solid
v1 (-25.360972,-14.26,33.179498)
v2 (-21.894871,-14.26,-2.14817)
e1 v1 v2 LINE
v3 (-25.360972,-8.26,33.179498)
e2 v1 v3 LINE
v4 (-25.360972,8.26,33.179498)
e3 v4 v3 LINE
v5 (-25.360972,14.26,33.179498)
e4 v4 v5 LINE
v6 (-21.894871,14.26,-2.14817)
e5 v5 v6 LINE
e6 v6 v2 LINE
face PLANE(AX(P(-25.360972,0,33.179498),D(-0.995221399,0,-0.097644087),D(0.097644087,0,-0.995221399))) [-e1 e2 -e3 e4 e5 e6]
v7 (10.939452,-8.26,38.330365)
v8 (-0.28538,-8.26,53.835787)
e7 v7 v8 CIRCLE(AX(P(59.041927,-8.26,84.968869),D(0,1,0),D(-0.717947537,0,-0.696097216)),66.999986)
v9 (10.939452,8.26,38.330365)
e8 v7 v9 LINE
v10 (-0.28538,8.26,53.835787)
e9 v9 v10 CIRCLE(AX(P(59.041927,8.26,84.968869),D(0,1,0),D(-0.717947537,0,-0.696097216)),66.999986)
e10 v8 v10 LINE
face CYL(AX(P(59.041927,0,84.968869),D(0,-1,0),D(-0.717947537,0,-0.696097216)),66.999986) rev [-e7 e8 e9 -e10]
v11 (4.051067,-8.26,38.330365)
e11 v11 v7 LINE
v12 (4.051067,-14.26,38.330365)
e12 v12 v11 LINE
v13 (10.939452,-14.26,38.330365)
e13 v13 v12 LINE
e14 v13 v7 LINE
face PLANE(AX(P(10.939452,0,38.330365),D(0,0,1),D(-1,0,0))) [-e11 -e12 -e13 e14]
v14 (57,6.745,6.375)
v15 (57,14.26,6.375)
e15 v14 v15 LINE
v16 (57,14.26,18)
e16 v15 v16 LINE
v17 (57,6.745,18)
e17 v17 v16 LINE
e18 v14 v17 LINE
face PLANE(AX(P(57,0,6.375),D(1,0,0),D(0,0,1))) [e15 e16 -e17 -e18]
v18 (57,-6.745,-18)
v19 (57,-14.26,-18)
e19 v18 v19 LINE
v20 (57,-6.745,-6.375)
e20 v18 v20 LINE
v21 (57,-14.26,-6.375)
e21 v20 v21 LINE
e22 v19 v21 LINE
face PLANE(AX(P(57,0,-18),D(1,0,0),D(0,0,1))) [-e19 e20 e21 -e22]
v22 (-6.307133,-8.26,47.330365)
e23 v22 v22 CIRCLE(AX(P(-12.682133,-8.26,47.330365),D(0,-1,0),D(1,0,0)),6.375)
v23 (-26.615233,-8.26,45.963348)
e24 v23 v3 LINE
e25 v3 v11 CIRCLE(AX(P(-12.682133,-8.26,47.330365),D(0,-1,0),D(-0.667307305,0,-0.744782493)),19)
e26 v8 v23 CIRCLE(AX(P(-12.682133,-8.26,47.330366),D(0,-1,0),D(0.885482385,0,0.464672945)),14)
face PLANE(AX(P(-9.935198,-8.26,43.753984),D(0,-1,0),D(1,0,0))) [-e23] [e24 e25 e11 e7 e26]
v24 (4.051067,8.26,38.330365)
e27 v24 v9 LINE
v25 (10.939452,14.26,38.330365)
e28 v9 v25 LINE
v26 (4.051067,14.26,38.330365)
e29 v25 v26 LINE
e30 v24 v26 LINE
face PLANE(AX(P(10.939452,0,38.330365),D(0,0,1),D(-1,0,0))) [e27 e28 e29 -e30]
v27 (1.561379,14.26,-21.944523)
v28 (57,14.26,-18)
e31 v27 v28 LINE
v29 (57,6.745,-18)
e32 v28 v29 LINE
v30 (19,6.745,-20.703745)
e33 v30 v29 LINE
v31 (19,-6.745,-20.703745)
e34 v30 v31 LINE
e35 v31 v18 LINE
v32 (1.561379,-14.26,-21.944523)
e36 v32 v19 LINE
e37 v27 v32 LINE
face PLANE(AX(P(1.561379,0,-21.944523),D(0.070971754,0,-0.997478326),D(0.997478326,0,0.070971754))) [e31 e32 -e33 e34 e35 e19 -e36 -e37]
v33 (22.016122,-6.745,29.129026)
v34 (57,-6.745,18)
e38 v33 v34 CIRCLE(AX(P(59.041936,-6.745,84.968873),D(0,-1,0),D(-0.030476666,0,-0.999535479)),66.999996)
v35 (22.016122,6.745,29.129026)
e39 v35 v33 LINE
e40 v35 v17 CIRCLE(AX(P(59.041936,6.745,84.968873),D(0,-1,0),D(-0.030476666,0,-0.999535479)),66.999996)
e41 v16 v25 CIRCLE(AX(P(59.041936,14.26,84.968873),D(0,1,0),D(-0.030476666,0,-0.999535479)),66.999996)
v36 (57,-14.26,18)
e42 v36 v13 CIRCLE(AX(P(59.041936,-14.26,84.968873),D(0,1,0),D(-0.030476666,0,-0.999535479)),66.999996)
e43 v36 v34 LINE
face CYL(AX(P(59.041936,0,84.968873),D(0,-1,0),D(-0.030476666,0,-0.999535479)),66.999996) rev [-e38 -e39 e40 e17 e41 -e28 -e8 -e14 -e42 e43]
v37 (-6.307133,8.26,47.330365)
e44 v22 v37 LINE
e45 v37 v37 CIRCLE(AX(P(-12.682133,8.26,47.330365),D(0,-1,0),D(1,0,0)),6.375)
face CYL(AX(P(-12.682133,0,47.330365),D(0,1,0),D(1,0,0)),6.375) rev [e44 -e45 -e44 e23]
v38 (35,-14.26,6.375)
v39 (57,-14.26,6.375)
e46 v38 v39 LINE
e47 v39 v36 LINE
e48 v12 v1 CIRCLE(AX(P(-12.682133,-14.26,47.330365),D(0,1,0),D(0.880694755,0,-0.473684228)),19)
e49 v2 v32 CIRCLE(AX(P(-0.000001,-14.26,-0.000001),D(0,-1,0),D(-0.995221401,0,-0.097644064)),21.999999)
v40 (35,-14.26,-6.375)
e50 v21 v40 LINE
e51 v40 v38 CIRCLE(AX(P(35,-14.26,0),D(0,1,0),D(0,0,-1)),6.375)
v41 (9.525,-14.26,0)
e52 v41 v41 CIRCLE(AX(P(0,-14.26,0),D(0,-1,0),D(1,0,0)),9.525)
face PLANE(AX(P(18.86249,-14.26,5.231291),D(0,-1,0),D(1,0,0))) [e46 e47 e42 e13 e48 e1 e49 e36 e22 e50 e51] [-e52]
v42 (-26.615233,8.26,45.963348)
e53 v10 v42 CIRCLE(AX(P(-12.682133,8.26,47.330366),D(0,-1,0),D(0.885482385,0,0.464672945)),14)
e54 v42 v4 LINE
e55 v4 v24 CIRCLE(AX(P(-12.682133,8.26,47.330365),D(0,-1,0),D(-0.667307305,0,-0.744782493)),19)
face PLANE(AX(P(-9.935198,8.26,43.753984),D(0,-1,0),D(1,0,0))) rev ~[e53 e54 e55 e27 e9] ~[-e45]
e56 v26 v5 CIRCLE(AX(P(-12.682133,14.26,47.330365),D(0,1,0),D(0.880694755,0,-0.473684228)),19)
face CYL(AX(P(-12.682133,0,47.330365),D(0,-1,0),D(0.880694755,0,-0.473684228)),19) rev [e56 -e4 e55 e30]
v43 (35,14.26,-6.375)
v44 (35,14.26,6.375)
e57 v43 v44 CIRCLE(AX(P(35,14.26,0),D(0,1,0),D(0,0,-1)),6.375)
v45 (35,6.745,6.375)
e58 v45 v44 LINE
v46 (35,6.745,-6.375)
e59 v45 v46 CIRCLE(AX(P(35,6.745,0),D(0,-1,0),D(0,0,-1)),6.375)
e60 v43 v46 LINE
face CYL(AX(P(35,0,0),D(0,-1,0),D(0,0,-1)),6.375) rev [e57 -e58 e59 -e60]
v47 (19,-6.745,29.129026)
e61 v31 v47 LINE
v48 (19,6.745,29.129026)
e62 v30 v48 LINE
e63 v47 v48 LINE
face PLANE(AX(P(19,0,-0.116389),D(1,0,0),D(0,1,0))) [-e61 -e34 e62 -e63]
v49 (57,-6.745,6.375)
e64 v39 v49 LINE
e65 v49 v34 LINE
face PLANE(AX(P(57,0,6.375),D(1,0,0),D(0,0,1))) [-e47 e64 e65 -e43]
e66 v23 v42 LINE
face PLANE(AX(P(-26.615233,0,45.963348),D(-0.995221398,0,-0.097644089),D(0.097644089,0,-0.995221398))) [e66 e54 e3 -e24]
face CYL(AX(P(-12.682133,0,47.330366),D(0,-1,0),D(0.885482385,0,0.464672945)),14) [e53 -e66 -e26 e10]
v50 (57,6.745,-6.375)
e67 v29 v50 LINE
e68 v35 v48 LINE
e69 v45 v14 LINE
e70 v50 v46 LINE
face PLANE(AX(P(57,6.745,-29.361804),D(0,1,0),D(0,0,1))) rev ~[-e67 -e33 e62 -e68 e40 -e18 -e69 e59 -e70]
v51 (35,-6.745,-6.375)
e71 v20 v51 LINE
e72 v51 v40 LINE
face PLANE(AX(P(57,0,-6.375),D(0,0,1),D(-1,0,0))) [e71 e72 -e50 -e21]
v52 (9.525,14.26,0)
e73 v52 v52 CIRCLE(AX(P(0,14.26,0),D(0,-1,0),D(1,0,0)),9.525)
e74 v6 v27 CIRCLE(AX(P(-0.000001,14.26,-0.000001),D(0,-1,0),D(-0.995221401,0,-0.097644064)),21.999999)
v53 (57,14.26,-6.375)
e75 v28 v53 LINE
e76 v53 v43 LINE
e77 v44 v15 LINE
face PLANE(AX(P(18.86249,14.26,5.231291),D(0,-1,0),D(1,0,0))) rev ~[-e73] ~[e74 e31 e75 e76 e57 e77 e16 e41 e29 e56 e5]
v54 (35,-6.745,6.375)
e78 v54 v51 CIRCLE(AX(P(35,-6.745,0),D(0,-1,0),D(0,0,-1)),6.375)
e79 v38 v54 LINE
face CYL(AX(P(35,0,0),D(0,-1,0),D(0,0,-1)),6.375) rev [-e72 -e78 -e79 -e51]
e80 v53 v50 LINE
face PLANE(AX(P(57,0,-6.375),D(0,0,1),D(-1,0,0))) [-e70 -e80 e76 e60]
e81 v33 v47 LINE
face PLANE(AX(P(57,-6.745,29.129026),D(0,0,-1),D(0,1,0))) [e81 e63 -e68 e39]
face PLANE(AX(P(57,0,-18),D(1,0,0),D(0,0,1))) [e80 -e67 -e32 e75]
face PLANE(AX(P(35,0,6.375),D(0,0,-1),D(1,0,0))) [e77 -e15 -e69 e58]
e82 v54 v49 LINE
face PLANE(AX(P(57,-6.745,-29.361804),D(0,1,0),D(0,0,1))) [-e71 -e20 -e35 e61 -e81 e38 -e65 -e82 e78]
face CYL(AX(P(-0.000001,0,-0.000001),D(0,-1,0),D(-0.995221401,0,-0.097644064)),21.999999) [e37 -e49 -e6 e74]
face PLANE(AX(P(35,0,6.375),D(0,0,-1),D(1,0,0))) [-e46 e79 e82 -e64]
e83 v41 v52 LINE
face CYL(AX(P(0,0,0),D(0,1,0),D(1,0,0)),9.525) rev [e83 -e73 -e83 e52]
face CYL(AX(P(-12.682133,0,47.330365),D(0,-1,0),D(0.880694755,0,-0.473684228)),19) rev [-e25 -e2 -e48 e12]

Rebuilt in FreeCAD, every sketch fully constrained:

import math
import FreeCAD as App
import Part
import Sketcher

V = App.Vector


def add_polygon(sketch, points):
    """Adds a closed chain of lines whose ends are joined by coincident constraints."""
    first, n = sketch.GeometryCount, len(points)
    for a, b in zip(points, points[1:] + points[:1]):
        sketch.addGeometry(Part.LineSegment(App.Vector(*a, 0), App.Vector(*b, 0)), False)
    for i in range(n):
        sketch.addConstraint(Sketcher.Constraint("Coincident", first + i, 2, first + (i + 1) % n, 1))

doc = App.newDocument("Part")
body = doc.addObject("PartDesign::Body", "Body")

sketch1 = body.newObject("Sketcher::SketchObject", "Sketch")
sketch1.AttachmentSupport = (doc.getObject("XZ_Plane"), [""])
sketch1.MapMode = "FlatFace"
sketch1.addGeometry(Part.LineSegment(V(-27, 46, 0), V(-25, 33, 0)), False)
sketch1.addGeometry(Part.ArcOfCircle(Part.Circle(V(-13, 47, 0), V(0, 0, 1), 19), math.radians(-132), math.radians(-28)), False)
sketch1.addGeometry(Part.LineSegment(V(4, 38, 0), V(11, 38, 0)), False)
sketch1.addGeometry(Part.ArcOfCircle(Part.Circle(V(59, 85, 0), V(0, 0, 1), 67), math.radians(-152.31), math.radians(-135.89)), False)
sketch1.addGeometry(Part.ArcOfCircle(Part.Circle(V(-13, 47, 0), V(0, 0, 1), 14), math.radians(28), math.radians(186)), False)
sketch1.addGeometry(Part.Circle(V(-13, 47, 0), V(0, 0, 1), 6), False)
sketch1.addConstraint(Sketcher.Constraint("Coincident", 0, 2, 1, 1))
sketch1.addConstraint(Sketcher.Constraint("Coincident", 1, 2, 2, 1))
sketch1.addConstraint(Sketcher.Constraint("Coincident", 2, 2, 3, 2))
sketch1.addConstraint(Sketcher.Constraint("Tangent", 3, 1, 4, 1))
sketch1.addConstraint(Sketcher.Constraint("Tangent", 4, 2, 0, 1))
sketch1.addConstraint(Sketcher.Constraint("Horizontal", 2))
sketch1.addConstraint(Sketcher.Constraint("Coincident", 4, 3, 1, 3))
sketch1.addConstraint(Sketcher.Constraint("Coincident", 5, 3, 1, 3))
sketch1.addConstraint(Sketcher.Constraint("Radius", 1, 19.0))
sketch1.addConstraint(Sketcher.Constraint("Radius", 4, 14.0))
sketch1.addConstraint(Sketcher.Constraint("Diameter", 5, 12.75))
sketch1.addConstraint(Sketcher.Constraint("DistanceY", 1, 2, 5, 3, 9.0))
sketch1.addConstraint(Sketcher.Constraint("Radius", 3, 66.999986))
sketch1.addConstraint(Sketcher.Constraint("DistanceY", -1, 1, 0, 2, 33.179498))
sketch1.addConstraint(Sketcher.Constraint("DistanceX", 0, 2, 3, 3, 84.402899))
sketch1.addConstraint(Sketcher.Constraint("DistanceX", 4, 2, 4, 3, 13.9331))
sketch1.addConstraint(Sketcher.Constraint("DistanceX", -1, 1, 2, 2, 10.939452))
pad1 = body.newObject("PartDesign::Pad", "Pad")
pad1.Profile = sketch1
pad1.Length = 16.52
pad1.Midplane = True

sketch2 = body.newObject("Sketcher::SketchObject", "Sketch001")
sketch2.AttachmentSupport = (doc.getObject("XZ_Plane"), [""])
sketch2.MapMode = "FlatFace"
sketch2.addGeometry(Part.LineSegment(V(-25, 33, 0), V(-22, -2, 0)), False)
sketch2.addGeometry(Part.ArcOfCircle(Part.Circle(V(0, 0, 0), V(0, 0, 1), 22), math.radians(-174), math.radians(-86)), False)
sketch2.addGeometry(Part.LineSegment(V(2, -22, 0), V(57, -18, 0)), False)
sketch2.addGeometry(Part.LineSegment(V(57, -18, 0), V(57, -6, 0)), False)
sketch2.addGeometry(Part.LineSegment(V(57, -6, 0), V(35, -6, 0)), False)
sketch2.addGeometry(Part.ArcOfCircle(Part.Circle(V(35, 0, 0), V(0, 0, 1), 6), math.radians(90), math.radians(270)), False)
sketch2.addGeometry(Part.LineSegment(V(35, 6, 0), V(57, 6, 0)), False)
sketch2.addGeometry(Part.LineSegment(V(57, 6, 0), V(57, 18, 0)), False)
sketch2.addGeometry(Part.ArcOfCircle(Part.Circle(V(59, 85, 0), V(0, 0, 1), 67), math.radians(-136), math.radians(-92)), False)
sketch2.addGeometry(Part.LineSegment(V(11, 38, 0), V(4, 38, 0)), False)
sketch2.addGeometry(Part.ArcOfCircle(Part.Circle(V(-13, 47, 0), V(0, 0, 1), 19), math.radians(-132), math.radians(-28)), False)
sketch2.addGeometry(Part.Circle(V(0, 0, 0), V(0, 0, 1), 10), False)
sketch2.addConstraint(Sketcher.Constraint("Tangent", 0, 2, 1, 1))
sketch2.addConstraint(Sketcher.Constraint("Tangent", 1, 2, 2, 1))
sketch2.addConstraint(Sketcher.Constraint("Coincident", 2, 2, 3, 1))
sketch2.addConstraint(Sketcher.Constraint("Coincident", 3, 2, 4, 1))
sketch2.addConstraint(Sketcher.Constraint("Tangent", 4, 2, 5, 2))
sketch2.addConstraint(Sketcher.Constraint("Tangent", 5, 1, 6, 1))
sketch2.addConstraint(Sketcher.Constraint("Coincident", 6, 2, 7, 1))
sketch2.addConstraint(Sketcher.Constraint("Coincident", 7, 2, 8, 2))
sketch2.addConstraint(Sketcher.Constraint("Coincident", 8, 1, 9, 1))
sketch2.addConstraint(Sketcher.Constraint("Coincident", 9, 2, 10, 2))
sketch2.addConstraint(Sketcher.Constraint("Coincident", 10, 1, 0, 1))
sketch2.addConstraint(Sketcher.Constraint("Vertical", 3))
sketch2.addConstraint(Sketcher.Constraint("Horizontal", 4))
sketch2.addConstraint(Sketcher.Constraint("Horizontal", 6))
sketch2.addConstraint(Sketcher.Constraint("Vertical", 7))
sketch2.addConstraint(Sketcher.Constraint("Horizontal", 9))
sketch2.addConstraint(Sketcher.Constraint("Coincident", 1, 3, -1, 1))
sketch2.addConstraint(Sketcher.Constraint("Coincident", 11, 3, -1, 1))
sketch2.addConstraint(Sketcher.Constraint("Symmetric", 3, 2, 6, 2, -1))
sketch2.addConstraint(Sketcher.Constraint("Equal", 3, 7))
sketch2.addConstraint(Sketcher.Constraint("Radius", 1, 21.999999))
sketch2.addConstraint(Sketcher.Constraint("Radius", 10, 19.0))
sketch2.addConstraint(Sketcher.Constraint("Diameter", 11, 19.05))
sketch2.addConstraint(Sketcher.Constraint("DistanceX", 4, 2, 4, 1, 22.0))
sketch2.addConstraint(Sketcher.Constraint("DistanceX", -1, 1, 5, 3, 35.0))
sketch2.addConstraint(Sketcher.Constraint("DistanceY", 2, 2, -1, 1, 18.0))
sketch2.addConstraint(Sketcher.Constraint("Radius", 5, 6.375))
sketch2.addConstraint(Sketcher.Constraint("DistanceY", 8, 1, 10, 3, 9.0))
sketch2.addConstraint(Sketcher.Constraint("Radius", 8, 66.999996))
sketch2.addConstraint(Sketcher.Constraint("DistanceY", -1, 1, 10, 1, 33.179498))
sketch2.addConstraint(Sketcher.Constraint("DistanceX", 10, 1, 0, 2, 3.466101))
sketch2.addConstraint(Sketcher.Constraint("DistanceX", 9, 2, 9, 1, 6.888385))
sketch2.addConstraint(Sketcher.Constraint("DistanceX", 10, 3, 8, 3, 71.72407))
pad2 = body.newObject("PartDesign::Pad", "Pad001")
pad2.Profile = sketch2
pad2.Length = 28.52
pad2.Midplane = True

sketch3 = body.newObject("Sketcher::SketchObject", "Sketch002")
sketch3.AttachmentSupport = (doc.getObject("YZ_Plane"), [""])
sketch3.MapMode = "FlatFace"
sketch3.AttachmentOffset = App.Placement(V(0, 0, 57), App.Rotation())
add_polygon(sketch3, [(-7, 29), (-7, -29), (7, -29), (7, 29)])
sketch3.addConstraint(Sketcher.Constraint("Vertical", 0))
sketch3.addConstraint(Sketcher.Constraint("Horizontal", 1))
sketch3.addConstraint(Sketcher.Constraint("Vertical", 2))
sketch3.addConstraint(Sketcher.Constraint("Horizontal", 3))
sketch3.addConstraint(Sketcher.Constraint("DistanceX", 1, 1, 1, 2, 13.49))
sketch3.addConstraint(Sketcher.Constraint("DistanceX", 0, 2, -1, 1, 6.745))
sketch3.addConstraint(Sketcher.Constraint("DistanceY", 0, 2, 0, 1, 58.49083))
sketch3.addConstraint(Sketcher.Constraint("DistanceY", 0, 2, -1, 1, 29.361804))
pocket1 = body.newObject("PartDesign::Pocket", "Pocket")
pocket1.Profile = sketch3
pocket1.Length = 38

doc.recompute()
